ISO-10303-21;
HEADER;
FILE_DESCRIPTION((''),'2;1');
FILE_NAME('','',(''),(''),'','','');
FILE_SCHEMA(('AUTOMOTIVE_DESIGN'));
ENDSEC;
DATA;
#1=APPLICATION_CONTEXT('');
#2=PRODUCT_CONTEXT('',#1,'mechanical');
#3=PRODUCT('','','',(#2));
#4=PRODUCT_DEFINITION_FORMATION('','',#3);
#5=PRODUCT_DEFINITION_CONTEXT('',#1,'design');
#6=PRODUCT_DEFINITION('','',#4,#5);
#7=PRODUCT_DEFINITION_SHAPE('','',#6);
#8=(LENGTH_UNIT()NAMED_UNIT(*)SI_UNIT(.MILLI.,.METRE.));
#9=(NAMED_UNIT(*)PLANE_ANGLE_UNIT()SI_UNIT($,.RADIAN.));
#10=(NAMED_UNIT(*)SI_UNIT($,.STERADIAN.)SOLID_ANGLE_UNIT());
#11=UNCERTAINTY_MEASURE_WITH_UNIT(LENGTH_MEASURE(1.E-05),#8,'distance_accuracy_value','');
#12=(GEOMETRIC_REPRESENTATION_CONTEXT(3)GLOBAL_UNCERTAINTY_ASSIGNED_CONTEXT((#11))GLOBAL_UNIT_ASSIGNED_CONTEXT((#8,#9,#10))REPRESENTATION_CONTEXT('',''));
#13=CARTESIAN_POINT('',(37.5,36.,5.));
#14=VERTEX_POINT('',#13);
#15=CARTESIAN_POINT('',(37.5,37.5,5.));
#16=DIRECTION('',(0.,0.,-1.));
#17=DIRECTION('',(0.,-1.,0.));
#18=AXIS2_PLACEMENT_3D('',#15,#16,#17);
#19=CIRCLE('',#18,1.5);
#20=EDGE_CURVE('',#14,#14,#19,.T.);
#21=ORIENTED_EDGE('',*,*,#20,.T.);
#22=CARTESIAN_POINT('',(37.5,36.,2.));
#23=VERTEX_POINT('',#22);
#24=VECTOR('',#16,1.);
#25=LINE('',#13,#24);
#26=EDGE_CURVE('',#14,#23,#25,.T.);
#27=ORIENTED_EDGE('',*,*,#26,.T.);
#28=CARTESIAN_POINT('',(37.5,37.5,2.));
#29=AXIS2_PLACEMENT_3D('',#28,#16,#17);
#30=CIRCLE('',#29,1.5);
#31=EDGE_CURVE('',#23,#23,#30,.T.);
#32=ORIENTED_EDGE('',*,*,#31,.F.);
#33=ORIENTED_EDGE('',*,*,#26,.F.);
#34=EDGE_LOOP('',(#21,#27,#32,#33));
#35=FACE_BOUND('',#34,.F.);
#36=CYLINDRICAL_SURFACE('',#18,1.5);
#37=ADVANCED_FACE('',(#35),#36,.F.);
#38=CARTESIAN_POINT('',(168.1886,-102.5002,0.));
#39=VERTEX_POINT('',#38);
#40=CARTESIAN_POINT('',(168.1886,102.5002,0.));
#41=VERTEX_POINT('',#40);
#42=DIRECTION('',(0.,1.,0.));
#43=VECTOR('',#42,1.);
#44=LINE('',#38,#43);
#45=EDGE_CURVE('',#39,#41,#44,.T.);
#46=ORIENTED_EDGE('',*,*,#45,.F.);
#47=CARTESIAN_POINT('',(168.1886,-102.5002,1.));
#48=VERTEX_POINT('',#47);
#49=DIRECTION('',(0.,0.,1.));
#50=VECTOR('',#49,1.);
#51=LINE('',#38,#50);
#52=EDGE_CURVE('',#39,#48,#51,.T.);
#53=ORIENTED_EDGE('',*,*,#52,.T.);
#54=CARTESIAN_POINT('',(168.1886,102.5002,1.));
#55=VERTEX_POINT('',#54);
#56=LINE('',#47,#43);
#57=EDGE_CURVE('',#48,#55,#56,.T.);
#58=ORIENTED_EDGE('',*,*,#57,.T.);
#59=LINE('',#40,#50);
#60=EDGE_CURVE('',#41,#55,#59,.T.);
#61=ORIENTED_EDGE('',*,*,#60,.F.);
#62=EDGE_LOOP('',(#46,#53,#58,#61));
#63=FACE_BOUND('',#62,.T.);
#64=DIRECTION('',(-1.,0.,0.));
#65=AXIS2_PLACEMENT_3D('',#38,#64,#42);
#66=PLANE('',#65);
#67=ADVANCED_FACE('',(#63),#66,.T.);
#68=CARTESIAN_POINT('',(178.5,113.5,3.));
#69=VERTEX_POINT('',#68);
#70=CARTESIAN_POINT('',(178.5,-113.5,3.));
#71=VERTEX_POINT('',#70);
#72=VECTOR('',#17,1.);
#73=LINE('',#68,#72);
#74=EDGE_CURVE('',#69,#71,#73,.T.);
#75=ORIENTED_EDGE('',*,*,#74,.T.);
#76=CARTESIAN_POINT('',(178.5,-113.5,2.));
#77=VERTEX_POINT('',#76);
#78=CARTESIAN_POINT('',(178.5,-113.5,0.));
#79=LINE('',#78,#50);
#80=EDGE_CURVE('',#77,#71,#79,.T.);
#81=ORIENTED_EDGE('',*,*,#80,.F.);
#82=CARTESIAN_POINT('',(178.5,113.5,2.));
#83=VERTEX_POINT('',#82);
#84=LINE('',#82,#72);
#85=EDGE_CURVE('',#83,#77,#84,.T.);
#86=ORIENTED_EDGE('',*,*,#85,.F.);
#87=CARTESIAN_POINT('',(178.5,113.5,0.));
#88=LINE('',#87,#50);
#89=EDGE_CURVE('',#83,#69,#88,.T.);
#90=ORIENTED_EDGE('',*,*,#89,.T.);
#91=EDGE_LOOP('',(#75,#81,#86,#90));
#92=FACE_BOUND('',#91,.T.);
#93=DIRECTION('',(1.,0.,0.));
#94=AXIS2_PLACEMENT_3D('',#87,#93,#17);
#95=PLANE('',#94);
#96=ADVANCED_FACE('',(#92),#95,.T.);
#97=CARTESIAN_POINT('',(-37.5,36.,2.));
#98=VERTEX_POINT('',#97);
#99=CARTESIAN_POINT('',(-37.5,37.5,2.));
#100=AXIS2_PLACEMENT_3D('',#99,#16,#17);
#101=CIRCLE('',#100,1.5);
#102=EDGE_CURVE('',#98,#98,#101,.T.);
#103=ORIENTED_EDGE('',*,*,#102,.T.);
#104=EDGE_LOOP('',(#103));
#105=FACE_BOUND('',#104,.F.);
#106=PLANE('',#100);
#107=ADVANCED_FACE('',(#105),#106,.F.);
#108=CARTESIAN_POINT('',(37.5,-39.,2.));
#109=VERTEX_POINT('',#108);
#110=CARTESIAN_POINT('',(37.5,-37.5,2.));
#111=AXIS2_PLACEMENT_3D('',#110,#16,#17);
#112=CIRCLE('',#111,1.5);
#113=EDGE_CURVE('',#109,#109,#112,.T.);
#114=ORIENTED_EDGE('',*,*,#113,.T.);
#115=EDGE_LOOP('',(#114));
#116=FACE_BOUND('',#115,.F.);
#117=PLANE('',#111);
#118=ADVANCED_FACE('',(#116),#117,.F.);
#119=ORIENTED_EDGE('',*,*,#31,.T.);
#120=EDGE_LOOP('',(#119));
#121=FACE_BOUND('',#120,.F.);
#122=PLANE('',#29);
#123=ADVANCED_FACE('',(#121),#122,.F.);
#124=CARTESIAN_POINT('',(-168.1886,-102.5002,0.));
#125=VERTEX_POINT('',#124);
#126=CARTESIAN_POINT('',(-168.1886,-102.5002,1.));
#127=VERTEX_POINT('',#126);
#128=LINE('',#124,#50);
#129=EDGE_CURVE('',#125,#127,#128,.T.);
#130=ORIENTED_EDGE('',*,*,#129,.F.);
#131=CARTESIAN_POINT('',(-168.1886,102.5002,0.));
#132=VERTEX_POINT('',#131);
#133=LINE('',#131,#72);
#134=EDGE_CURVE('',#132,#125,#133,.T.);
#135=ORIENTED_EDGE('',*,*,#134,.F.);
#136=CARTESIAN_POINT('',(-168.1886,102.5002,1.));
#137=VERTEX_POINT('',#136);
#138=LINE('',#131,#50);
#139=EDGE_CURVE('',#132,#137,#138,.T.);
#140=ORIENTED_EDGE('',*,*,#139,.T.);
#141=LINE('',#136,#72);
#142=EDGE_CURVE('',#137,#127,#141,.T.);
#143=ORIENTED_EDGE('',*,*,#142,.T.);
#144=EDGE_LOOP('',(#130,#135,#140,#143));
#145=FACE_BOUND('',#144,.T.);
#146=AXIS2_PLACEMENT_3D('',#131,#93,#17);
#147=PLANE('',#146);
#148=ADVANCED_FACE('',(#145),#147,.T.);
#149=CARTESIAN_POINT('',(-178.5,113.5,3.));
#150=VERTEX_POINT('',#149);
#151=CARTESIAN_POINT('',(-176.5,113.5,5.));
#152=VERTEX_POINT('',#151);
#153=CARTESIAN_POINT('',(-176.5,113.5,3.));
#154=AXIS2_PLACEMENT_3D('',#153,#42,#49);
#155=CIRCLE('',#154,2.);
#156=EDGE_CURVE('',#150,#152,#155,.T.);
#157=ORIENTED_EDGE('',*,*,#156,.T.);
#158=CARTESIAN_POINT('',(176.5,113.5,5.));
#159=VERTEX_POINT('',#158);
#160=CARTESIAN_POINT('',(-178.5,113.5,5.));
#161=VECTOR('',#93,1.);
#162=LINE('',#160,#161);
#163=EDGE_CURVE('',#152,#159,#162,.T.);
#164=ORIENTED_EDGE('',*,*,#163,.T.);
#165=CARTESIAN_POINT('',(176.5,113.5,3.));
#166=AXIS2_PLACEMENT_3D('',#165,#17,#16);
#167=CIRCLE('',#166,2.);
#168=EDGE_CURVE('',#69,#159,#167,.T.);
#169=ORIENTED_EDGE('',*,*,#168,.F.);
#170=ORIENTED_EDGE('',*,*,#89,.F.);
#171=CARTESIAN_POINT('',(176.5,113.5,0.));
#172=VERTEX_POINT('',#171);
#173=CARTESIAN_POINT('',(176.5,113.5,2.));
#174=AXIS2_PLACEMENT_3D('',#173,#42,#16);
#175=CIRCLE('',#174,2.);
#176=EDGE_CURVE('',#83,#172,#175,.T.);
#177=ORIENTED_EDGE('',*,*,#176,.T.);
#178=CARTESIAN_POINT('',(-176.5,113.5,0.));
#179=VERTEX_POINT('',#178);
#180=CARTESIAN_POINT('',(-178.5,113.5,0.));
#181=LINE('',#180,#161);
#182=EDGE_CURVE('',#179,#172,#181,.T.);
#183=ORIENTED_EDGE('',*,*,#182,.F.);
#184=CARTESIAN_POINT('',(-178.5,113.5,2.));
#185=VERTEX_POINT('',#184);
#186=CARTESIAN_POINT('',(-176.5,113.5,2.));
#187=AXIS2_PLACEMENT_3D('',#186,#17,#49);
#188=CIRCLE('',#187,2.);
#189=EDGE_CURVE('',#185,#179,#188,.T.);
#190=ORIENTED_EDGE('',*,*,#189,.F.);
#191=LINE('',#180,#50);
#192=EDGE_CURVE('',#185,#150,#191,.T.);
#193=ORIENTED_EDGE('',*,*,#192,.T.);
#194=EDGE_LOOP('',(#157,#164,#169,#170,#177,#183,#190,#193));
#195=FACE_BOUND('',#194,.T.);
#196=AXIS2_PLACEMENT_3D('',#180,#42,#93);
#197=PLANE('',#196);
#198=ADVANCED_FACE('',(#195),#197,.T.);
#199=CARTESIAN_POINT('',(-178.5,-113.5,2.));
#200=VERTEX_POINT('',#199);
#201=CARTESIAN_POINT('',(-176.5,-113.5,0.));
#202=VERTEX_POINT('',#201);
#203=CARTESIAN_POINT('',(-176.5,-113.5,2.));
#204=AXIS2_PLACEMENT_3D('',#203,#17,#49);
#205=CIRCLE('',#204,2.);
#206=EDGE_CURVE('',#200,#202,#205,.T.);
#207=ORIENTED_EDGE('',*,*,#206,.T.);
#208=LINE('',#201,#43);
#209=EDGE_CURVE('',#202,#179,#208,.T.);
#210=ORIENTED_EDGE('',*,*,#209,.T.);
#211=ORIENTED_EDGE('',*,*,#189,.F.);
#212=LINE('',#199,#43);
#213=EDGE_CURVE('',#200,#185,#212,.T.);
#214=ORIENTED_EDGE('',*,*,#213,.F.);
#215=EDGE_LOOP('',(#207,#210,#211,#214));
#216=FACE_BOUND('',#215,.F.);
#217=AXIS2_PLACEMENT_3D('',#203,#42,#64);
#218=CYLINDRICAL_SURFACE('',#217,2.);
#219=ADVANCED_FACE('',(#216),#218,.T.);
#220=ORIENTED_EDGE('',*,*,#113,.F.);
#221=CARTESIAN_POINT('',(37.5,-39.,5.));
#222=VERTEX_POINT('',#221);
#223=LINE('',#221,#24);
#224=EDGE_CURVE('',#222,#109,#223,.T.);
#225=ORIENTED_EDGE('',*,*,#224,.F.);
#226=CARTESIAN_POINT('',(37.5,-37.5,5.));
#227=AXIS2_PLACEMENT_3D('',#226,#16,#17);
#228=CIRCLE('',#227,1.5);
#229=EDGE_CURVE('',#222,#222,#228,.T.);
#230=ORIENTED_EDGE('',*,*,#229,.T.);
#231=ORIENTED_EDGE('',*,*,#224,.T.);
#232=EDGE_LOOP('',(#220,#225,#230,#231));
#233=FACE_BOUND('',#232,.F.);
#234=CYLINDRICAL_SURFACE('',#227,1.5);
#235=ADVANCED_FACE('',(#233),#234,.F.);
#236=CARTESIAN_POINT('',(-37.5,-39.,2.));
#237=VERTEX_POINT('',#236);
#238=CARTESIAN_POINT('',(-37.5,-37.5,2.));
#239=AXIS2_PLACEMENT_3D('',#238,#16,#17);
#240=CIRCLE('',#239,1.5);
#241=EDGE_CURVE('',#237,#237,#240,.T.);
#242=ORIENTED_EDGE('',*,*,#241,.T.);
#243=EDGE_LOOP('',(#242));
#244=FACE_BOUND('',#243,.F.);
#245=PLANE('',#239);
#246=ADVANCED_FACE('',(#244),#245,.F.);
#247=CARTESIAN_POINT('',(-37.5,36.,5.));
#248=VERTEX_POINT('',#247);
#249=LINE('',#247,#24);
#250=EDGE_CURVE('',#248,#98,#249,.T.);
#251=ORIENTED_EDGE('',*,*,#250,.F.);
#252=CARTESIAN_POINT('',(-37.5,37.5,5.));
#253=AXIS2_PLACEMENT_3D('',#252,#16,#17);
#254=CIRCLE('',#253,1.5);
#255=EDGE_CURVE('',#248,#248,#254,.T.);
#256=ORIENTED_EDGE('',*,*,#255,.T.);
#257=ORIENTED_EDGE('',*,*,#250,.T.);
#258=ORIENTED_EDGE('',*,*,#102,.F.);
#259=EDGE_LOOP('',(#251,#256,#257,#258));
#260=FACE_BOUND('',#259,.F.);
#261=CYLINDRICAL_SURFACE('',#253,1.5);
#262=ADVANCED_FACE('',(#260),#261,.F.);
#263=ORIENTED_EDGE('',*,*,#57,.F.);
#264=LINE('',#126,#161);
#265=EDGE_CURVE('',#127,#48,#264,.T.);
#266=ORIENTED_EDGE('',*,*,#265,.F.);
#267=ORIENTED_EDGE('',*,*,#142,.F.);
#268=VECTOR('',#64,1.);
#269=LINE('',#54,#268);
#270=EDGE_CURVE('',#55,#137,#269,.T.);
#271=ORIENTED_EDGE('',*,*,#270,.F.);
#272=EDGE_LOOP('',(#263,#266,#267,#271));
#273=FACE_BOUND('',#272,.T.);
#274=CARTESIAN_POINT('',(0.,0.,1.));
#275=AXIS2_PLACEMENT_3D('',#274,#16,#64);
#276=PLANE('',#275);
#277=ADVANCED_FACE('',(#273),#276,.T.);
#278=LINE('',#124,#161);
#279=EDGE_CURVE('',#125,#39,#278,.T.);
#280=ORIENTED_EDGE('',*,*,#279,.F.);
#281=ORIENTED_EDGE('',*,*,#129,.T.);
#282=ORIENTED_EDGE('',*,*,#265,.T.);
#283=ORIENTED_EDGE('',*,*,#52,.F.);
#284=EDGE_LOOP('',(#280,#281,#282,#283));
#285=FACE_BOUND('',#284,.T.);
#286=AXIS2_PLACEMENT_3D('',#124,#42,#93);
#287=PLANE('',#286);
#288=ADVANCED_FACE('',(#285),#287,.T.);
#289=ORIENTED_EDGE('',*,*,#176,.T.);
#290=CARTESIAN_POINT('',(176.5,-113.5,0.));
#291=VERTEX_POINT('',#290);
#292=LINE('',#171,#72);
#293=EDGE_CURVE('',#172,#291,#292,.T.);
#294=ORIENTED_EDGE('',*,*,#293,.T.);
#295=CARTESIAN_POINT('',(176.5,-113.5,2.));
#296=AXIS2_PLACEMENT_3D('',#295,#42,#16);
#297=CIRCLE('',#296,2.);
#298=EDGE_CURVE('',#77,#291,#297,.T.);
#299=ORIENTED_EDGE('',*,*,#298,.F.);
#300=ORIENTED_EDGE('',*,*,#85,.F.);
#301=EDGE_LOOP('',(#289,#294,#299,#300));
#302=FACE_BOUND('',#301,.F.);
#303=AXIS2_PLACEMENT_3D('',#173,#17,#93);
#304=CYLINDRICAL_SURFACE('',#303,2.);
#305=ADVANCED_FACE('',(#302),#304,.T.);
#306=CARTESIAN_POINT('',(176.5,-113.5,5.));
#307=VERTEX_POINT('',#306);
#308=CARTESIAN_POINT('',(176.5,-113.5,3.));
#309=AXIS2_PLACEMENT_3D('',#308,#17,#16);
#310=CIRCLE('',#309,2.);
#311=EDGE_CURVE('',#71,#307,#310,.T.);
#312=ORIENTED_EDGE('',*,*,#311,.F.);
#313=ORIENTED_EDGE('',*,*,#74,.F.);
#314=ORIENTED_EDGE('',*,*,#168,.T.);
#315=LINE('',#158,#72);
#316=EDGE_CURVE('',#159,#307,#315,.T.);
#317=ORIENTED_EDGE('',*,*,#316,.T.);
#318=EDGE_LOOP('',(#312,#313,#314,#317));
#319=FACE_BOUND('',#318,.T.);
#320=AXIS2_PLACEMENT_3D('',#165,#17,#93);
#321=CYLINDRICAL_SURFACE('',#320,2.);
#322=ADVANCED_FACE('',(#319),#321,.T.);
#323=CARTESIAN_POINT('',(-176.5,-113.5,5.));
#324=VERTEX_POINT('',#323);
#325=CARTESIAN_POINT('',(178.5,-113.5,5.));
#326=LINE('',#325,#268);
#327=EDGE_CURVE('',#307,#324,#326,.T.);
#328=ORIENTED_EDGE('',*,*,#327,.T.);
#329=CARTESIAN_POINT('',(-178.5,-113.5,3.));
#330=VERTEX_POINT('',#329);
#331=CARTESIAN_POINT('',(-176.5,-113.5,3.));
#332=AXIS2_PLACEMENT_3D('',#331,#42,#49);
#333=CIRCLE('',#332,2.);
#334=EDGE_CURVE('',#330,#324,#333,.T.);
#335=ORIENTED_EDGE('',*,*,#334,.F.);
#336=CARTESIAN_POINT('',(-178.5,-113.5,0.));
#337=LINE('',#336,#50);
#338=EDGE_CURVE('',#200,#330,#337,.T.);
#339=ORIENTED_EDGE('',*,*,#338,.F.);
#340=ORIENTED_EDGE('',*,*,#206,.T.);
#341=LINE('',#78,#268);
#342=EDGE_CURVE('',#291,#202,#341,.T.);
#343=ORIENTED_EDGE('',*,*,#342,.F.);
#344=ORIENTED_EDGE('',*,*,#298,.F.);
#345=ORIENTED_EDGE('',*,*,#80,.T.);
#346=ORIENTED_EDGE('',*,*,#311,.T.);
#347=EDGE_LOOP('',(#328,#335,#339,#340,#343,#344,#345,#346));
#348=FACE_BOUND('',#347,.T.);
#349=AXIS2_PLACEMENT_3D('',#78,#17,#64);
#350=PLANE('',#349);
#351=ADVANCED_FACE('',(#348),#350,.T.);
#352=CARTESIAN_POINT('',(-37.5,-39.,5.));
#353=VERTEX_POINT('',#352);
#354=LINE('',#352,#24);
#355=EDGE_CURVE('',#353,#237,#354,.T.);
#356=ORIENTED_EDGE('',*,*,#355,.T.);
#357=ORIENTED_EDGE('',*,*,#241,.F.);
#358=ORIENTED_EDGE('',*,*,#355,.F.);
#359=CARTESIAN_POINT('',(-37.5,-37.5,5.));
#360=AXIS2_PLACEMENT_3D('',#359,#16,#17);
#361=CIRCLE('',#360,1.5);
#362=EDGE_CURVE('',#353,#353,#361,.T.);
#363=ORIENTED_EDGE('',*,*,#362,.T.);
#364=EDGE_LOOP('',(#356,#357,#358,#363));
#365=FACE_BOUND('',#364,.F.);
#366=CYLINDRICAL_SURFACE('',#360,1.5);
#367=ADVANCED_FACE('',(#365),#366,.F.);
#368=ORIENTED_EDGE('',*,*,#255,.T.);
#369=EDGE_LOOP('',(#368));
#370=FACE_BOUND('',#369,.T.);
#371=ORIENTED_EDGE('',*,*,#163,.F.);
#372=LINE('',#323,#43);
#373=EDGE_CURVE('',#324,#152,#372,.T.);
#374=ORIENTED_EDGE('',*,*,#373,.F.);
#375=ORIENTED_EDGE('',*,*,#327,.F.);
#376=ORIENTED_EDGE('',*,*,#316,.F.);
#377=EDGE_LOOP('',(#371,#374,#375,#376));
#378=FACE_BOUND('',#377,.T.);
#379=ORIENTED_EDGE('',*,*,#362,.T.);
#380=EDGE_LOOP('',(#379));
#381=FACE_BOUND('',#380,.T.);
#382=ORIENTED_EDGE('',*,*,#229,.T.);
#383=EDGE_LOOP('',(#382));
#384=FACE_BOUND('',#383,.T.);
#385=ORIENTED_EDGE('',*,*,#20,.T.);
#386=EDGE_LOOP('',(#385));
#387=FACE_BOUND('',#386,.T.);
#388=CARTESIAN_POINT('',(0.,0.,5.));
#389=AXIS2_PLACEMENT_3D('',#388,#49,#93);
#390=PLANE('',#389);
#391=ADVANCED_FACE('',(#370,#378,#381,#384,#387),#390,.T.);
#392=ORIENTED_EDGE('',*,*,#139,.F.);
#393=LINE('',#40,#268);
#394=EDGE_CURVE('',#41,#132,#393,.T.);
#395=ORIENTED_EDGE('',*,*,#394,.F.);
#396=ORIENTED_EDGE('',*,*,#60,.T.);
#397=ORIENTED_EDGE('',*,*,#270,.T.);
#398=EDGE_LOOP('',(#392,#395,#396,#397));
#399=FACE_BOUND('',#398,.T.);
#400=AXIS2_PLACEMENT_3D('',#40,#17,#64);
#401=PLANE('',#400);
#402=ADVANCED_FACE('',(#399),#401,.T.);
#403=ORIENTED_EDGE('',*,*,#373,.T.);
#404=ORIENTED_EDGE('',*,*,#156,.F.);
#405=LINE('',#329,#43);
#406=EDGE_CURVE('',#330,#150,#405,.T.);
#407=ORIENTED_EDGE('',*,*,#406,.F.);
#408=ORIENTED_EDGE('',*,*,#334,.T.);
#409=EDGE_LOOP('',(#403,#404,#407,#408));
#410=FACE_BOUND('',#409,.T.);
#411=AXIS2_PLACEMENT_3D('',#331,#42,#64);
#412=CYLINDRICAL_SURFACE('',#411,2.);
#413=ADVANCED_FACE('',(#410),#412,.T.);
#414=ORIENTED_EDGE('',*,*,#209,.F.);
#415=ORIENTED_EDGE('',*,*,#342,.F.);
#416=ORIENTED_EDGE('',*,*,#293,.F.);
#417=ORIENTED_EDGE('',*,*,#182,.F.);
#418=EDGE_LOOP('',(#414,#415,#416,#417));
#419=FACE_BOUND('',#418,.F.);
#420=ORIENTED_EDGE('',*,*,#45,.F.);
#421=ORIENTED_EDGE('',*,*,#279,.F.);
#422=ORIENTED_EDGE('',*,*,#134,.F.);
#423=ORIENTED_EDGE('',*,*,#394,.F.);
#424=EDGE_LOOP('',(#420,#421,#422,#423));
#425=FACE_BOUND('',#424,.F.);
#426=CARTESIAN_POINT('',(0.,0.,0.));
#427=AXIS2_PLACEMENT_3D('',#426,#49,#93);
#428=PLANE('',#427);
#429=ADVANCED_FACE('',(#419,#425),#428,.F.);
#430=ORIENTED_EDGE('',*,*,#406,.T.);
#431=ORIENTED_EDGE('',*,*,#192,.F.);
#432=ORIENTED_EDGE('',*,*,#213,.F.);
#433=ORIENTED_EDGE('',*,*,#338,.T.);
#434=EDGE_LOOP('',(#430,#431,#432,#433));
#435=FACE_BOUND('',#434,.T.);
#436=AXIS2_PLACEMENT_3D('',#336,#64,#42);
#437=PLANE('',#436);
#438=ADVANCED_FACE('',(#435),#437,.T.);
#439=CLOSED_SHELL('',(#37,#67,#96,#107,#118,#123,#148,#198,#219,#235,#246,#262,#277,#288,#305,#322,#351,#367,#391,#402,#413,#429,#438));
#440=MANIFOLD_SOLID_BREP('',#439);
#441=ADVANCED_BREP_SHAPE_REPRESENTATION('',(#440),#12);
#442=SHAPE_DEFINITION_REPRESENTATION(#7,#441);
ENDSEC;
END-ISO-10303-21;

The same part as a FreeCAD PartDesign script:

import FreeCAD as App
import Part
import Sketcher
from FreeCAD import Vector


def edges_at(feature, points):
    """Names of the edges that pass closest to the given points."""
    edges = feature.Shape.Edges
    near = lambda p: min(range(len(edges)), key=lambda i: edges[i].distToShape(Part.Vertex(*p))[0])
    return sorted({f"Edge{near(p) + 1}" for p in points})


def add_polygon(sketch, points):
    """Adds a closed chain of lines whose ends are joined by coincident constraints."""
    first, n = sketch.GeometryCount, len(points)
    for a, b in zip(points, points[1:] + points[:1]):
        sketch.addGeometry(Part.LineSegment(App.Vector(*a, 0), App.Vector(*b, 0)), False)
    for i in range(n):
        sketch.addConstraint(Sketcher.Constraint("Coincident", first + i, 2, first + (i + 1) % n, 1))

doc = App.newDocument("Part")
body = doc.addObject("PartDesign::Body", "Body")

# Sketch on XY plane
sketch1 = body.newObject("Sketcher::SketchObject", "Sketch")
sketch1.AttachmentSupport = (doc.getObject("XY_Plane"), [""])
sketch1.MapMode = "FlatFace"
add_polygon(sketch1, [(-178, -114), (178, -114), (178, 114), (-178, 114)])  # lines 0-3
sketch1.addConstraint(Sketcher.Constraint("Horizontal", 0))
sketch1.addConstraint(Sketcher.Constraint("Vertical", 1))
sketch1.addConstraint(Sketcher.Constraint("Horizontal", 2))
sketch1.addConstraint(Sketcher.Constraint("Vertical", 3))
sketch1.addConstraint(Sketcher.Constraint("Symmetric", 0, 2, 2, 2, -1, 1))
sketch1.addConstraint(Sketcher.Constraint("DistanceX", 0, 1, 0, 2, 357.0))
sketch1.addConstraint(Sketcher.Constraint("DistanceY", 1, 1, 1, 2, 227.0))
pad1 = body.newObject("PartDesign::Pad", "Pad")
pad1.Profile = sketch1
pad1.Length = 5

# Sketch on XY plane
sketch2 = body.newObject("Sketcher::SketchObject", "Sketch001")
sketch2.AttachmentSupport = (doc.getObject("XY_Plane"), [""])
sketch2.MapMode = "FlatFace"
sketch2.AttachmentOffset = App.Placement(Vector(0, 0, 5), App.Rotation())
sketch2.addGeometry(Part.Circle(Vector(-37.5, 37.5, 0), Vector(0, 0, 1), 1.5), False)
sketch2.addGeometry(Part.Circle(Vector(37.5, 37.5, 0), Vector(0, 0, 1), 1.5), False)
sketch2.addGeometry(Part.Circle(Vector(37.5, -37.5, 0), Vector(0, 0, 1), 1.5), False)
sketch2.addGeometry(Part.Circle(Vector(-37.5, -37.5, 0), Vector(0, 0, 1), 1.5), False)
sketch2.addConstraint(Sketcher.Constraint("Equal", 0, 1))
sketch2.addConstraint(Sketcher.Constraint("Equal", 1, 2))
sketch2.addConstraint(Sketcher.Constraint("Equal", 2, 3))
sketch2.addConstraint(Sketcher.Constraint("Symmetric", 0, 3, 2, 3, -1, 1))
sketch2.addConstraint(Sketcher.Constraint("Symmetric", 1, 3, 3, 3, -1, 1))
sketch2.addConstraint(Sketcher.Constraint("Symmetric", 0, 3, 1, 3, -2))
sketch2.addConstraint(Sketcher.Constraint("Diameter", 0, 3.0))
sketch2.addConstraint(Sketcher.Constraint("DistanceX", 0, 3, 1, 3, 75.0))
sketch2.addConstraint(Sketcher.Constraint("DistanceY", 2, 3, 1, 3, 75.0))
doc.recompute()
hole = body.newObject("PartDesign::Hole", "Hole")
hole.Profile = sketch2
hole.ThreadType = "None"
hole.Diameter = 3
hole.DepthType = "Dimension"
hole.Depth = 3
hole.DrillPoint = "Flat"
doc.recompute()

fillet = body.newObject("PartDesign::Fillet", "Fillet")
fillet.Base = (hole, edges_at(hole, [
    (-178.5, 0, 0),
    (-178.5, 0, 5),
    (178.5, 0, 5),
    (178.5, 0, 0),
]))
fillet.Radius = 2

# Sketch on XY plane
sketch3 = body.newObject("Sketcher::SketchObject", "Sketch002")
sketch3.AttachmentSupport = (doc.getObject("XY_Plane"), [""])
sketch3.MapMode = "FlatFace"
add_polygon(sketch3, [(168, -103), (-168, -103), (-168, 103), (168, 103)])  # lines 0-3
sketch3.addConstraint(Sketcher.Constraint("Horizontal", 0))
sketch3.addConstraint(Sketcher.Constraint("Vertical", 1))
sketch3.addConstraint(Sketcher.Constraint("Horizontal", 2))
sketch3.addConstraint(Sketcher.Constraint("Vertical", 3))
sketch3.addConstraint(Sketcher.Constraint("Symmetric", 0, 2, 2, 2, -1, 1))
sketch3.addConstraint(Sketcher.Constraint("DistanceX", 0, 2, 0, 1, 336.3772))
sketch3.addConstraint(Sketcher.Constraint("DistanceY", 1, 1, 1, 2, 205.0004))
pocket1 = body.newObject("PartDesign::Pocket", "Pocket")
pocket1.Profile = sketch3
pocket1.Length = 1
pocket1.Reversed = True

doc.recompute()
